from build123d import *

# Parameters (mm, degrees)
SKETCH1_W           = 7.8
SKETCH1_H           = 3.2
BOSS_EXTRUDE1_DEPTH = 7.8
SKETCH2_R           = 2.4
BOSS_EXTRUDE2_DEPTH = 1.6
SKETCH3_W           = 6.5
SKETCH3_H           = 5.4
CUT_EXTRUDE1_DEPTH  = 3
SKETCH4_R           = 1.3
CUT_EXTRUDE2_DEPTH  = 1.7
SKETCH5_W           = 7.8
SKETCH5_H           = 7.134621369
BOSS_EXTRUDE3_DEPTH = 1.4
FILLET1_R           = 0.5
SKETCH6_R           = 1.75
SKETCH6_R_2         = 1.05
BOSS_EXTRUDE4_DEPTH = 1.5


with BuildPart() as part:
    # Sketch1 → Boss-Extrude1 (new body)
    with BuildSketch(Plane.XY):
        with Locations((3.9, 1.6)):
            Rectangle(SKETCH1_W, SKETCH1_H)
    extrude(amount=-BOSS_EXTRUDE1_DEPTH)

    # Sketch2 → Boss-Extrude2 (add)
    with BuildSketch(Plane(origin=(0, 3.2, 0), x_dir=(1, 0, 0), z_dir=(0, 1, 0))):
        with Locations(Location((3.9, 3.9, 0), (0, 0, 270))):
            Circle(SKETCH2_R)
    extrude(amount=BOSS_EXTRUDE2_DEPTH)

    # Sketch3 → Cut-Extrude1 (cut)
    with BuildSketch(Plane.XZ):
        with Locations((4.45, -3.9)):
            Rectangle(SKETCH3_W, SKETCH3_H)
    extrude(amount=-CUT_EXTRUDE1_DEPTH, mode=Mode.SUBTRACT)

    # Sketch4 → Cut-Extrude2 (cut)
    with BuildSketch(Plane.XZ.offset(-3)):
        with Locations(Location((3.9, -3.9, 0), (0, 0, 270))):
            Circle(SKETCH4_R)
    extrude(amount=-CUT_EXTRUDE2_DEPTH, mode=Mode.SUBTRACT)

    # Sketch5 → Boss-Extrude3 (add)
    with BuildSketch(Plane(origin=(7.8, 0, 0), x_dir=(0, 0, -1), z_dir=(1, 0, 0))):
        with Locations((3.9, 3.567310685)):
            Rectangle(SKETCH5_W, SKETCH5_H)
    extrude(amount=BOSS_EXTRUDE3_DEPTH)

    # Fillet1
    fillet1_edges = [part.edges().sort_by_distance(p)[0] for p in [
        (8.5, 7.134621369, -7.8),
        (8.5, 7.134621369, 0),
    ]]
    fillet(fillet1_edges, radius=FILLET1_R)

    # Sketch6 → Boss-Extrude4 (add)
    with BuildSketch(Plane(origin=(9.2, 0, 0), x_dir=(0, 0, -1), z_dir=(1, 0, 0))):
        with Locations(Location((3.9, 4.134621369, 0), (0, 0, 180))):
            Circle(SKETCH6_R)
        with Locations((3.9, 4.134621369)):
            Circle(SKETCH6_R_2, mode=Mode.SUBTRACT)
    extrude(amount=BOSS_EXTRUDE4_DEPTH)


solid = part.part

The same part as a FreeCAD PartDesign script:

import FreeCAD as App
import Part
import Sketcher
from FreeCAD import Vector
Q = App.Units.Quantity


def edges_at(feature, points):
    """Names of the edges that pass closest to the given points."""
    edges = feature.Shape.Edges
    near = lambda p: min(range(len(edges)), key=lambda i: edges[i].distToShape(Part.Vertex(*p))[0])
    return sorted({f"Edge{near(p) + 1}" for p in points})

doc = App.newDocument("Part")
body = doc.addObject("PartDesign::Body", "Body")

sketch1 = body.newObject("Sketcher::SketchObject", "Sketch")
sketch1.AttachmentSupport = (doc.getObject("XY_Plane"), [""])
sketch1.MapMode = "FlatFace"
sketch1.addGeometry([
    Part.LineSegment(Vector(0, 3.2, 0), Vector(0, 0, 0)),
    Part.LineSegment(Vector(0, 0, 0), Vector(7.8, 0, 0)),
    Part.LineSegment(Vector(7.8, 0, 0), Vector(7.8, 3.2, 0)),
    Part.LineSegment(Vector(7.8, 3.2, 0), Vector(0, 3.2, 0)),
], False)
sketch1.addConstraint([
    Sketcher.Constraint("Coincident", 0, 2, 1, 1),
    Sketcher.Constraint("Coincident", 1, 2, 2, 1),
    Sketcher.Constraint("Coincident", 2, 2, 3, 1),
    Sketcher.Constraint("Coincident", 3, 2, 0, 1),
    Sketcher.Constraint("Vertical", 0),
    Sketcher.Constraint("Horizontal", 1),
    Sketcher.Constraint("Vertical", 2),
    Sketcher.Constraint("Horizontal", 3),
    Sketcher.Constraint("Coincident", 0, 2, -1, 1),
    Sketcher.Constraint("DistanceX", 1, 1, 1, 2, Q("7.8 mm")),
    Sketcher.Constraint("DistanceY", 0, 2, 0, 1, Q("3.2 mm")),
])
pad1 = body.newObject("PartDesign::Pad", "Pad")
pad1.Profile = sketch1
pad1.Length = 7.8
pad1.Reversed = True

sketch2 = body.newObject("Sketcher::SketchObject", "Sketch001")
sketch2.AttachmentSupport = (doc.getObject("XZ_Plane"), [""])
sketch2.MapMode = "FlatFace"
sketch2.AttachmentOffset = App.Placement(Vector(0, 0, -3.2), App.Rotation())
sketch2.addGeometry(Part.Circle(Vector(3.9, -3.9, 0), Vector(0, 0, 1), 2.4), False)
sketch2.addConstraint([
    Sketcher.Constraint("Diameter", 0, Q("4.8 mm")),
    Sketcher.Constraint("DistanceX", -1, 1, 0, 3, Q("3.9 mm")),
    Sketcher.Constraint("DistanceY", 0, 3, -1, 1, Q("3.9 mm")),
])
pad2 = body.newObject("PartDesign::Pad", "Pad001")
pad2.Profile = sketch2
pad2.Length = 1.6
pad2.Reversed = True

sketch3 = body.newObject("Sketcher::SketchObject", "Sketch002")
sketch3.AttachmentSupport = (doc.getObject("XZ_Plane"), [""])
sketch3.MapMode = "FlatFace"
sketch3.addGeometry([
    Part.LineSegment(Vector(1, -1, 0), Vector(1, -7, 0)),
    Part.LineSegment(Vector(1, -7, 0), Vector(8, -7, 0)),
    Part.LineSegment(Vector(8, -7, 0), Vector(8, -1, 0)),
    Part.LineSegment(Vector(8, -1, 0), Vector(1, -1, 0)),
], False)
sketch3.addConstraint([
    Sketcher.Constraint("Coincident", 0, 2, 1, 1),
    Sketcher.Constraint("Coincident", 1, 2, 2, 1),
    Sketcher.Constraint("Coincident", 2, 2, 3, 1),
    Sketcher.Constraint("Coincident", 3, 2, 0, 1),
    Sketcher.Constraint("Vertical", 0),
    Sketcher.Constraint("Horizontal", 1),
    Sketcher.Constraint("Vertical", 2),
    Sketcher.Constraint("Horizontal", 3),
    Sketcher.Constraint("DistanceX", 1, 1, 1, 2, Q("6.5 mm")),
    Sketcher.Constraint("DistanceY", 0, 2, 0, 1, Q("5.4 mm")),
    Sketcher.Constraint("DistanceX", -1, 1, 0, 2, Q("1.2 mm")),
    Sketcher.Constraint("DistanceY", 0, 2, -1, 1, Q("6.6 mm")),
])
pocket1 = body.newObject("PartDesign::Pocket", "Pocket")
pocket1.Profile = sketch3
pocket1.Length = 3

sketch4 = body.newObject("Sketcher::SketchObject", "Sketch003")
sketch4.AttachmentSupport = (doc.getObject("XZ_Plane"), [""])
sketch4.MapMode = "FlatFace"
sketch4.AttachmentOffset = App.Placement(Vector(0, 0, -3), App.Rotation())
sketch4.addGeometry(Part.Circle(Vector(3.9, -3.9, 0), Vector(0, 0, 1), 1.3), False)
sketch4.addConstraint([
    Sketcher.Constraint("Diameter", 0, Q("2.6 mm")),
    Sketcher.Constraint("DistanceX", -1, 1, 0, 3, Q("3.9 mm")),
    Sketcher.Constraint("DistanceY", 0, 3, -1, 1, Q("3.9 mm")),
])
pocket2 = body.newObject("PartDesign::Pocket", "Pocket001")
pocket2.Profile = sketch4
pocket2.Length = 1.7

sketch5 = body.newObject("Sketcher::SketchObject", "Sketch004")
sketch5.AttachmentSupport = (doc.getObject("YZ_Plane"), [""])
sketch5.MapMode = "FlatFace"
sketch5.AttachmentOffset = App.Placement(Vector(0, 0, 7.8), App.Rotation())
sketch5.addGeometry([
    Part.LineSegment(Vector(7, 0, 0), Vector(0, 0, 0)),
    Part.LineSegment(Vector(0, 0, 0), Vector(0, -8, 0)),
    Part.LineSegment(Vector(0, -8, 0), Vector(7, -8, 0)),
    Part.LineSegment(Vector(7, -8, 0), Vector(7, 0, 0)),
], False)
sketch5.addConstraint([
    Sketcher.Constraint("Coincident", 0, 2, 1, 1),
    Sketcher.Constraint("Coincident", 1, 2, 2, 1),
    Sketcher.Constraint("Coincident", 2, 2, 3, 1),
    Sketcher.Constraint("Coincident", 3, 2, 0, 1),
    Sketcher.Constraint("Horizontal", 0),
    Sketcher.Constraint("Vertical", 1),
    Sketcher.Constraint("Horizontal", 2),
    Sketcher.Constraint("Vertical", 3),
    Sketcher.Constraint("Coincident", 0, 2, -1, 1),
    Sketcher.Constraint("DistanceY", 1, 2, 1, 1, Q("7.8 mm")),
    Sketcher.Constraint("DistanceX", 0, 2, 0, 1, Q("7.134621 mm")),
])
pad3 = body.newObject("PartDesign::Pad", "Pad002")
pad3.Profile = sketch5
pad3.Length = 1.4
doc.recompute()

fillet = body.newObject("PartDesign::Fillet", "Fillet")
fillet.Base = (pad3, edges_at(pad3, [(8.5, 7.135, -7.8), (8.5, 7.135, 0)]))
fillet.Radius = 0.5

sketch6 = body.newObject("Sketcher::SketchObject", "Sketch005")
sketch6.AttachmentSupport = (doc.getObject("YZ_Plane"), [""])
sketch6.MapMode = "FlatFace"
sketch6.AttachmentOffset = App.Placement(Vector(0, 0, 9.2), App.Rotation())
sketch6.addGeometry([
    Part.Circle(Vector(4.1, -3.9, 0), Vector(0, 0, 1), 1.8),
    Part.Circle(Vector(4.1, -3.9, 0), Vector(0, 0, 1), 1.1),
], False)
sketch6.addConstraint([
    Sketcher.Constraint("Coincident", 1, 3, 0, 3),
    Sketcher.Constraint("Diameter", 0, Q("3.5 mm")),
    Sketcher.Constraint("Diameter", 1, Q("2.1 mm")),
    Sketcher.Constraint("DistanceY", 0, 3, -1, 1, Q("3.9 mm")),
    Sketcher.Constraint("DistanceX", -1, 1, 0, 3, Q("4.134621 mm")),
])
pad4 = body.newObject("PartDesign::Pad", "Pad003")
pad4.Profile = sketch6
pad4.Length = 1.5

doc.recompute()
